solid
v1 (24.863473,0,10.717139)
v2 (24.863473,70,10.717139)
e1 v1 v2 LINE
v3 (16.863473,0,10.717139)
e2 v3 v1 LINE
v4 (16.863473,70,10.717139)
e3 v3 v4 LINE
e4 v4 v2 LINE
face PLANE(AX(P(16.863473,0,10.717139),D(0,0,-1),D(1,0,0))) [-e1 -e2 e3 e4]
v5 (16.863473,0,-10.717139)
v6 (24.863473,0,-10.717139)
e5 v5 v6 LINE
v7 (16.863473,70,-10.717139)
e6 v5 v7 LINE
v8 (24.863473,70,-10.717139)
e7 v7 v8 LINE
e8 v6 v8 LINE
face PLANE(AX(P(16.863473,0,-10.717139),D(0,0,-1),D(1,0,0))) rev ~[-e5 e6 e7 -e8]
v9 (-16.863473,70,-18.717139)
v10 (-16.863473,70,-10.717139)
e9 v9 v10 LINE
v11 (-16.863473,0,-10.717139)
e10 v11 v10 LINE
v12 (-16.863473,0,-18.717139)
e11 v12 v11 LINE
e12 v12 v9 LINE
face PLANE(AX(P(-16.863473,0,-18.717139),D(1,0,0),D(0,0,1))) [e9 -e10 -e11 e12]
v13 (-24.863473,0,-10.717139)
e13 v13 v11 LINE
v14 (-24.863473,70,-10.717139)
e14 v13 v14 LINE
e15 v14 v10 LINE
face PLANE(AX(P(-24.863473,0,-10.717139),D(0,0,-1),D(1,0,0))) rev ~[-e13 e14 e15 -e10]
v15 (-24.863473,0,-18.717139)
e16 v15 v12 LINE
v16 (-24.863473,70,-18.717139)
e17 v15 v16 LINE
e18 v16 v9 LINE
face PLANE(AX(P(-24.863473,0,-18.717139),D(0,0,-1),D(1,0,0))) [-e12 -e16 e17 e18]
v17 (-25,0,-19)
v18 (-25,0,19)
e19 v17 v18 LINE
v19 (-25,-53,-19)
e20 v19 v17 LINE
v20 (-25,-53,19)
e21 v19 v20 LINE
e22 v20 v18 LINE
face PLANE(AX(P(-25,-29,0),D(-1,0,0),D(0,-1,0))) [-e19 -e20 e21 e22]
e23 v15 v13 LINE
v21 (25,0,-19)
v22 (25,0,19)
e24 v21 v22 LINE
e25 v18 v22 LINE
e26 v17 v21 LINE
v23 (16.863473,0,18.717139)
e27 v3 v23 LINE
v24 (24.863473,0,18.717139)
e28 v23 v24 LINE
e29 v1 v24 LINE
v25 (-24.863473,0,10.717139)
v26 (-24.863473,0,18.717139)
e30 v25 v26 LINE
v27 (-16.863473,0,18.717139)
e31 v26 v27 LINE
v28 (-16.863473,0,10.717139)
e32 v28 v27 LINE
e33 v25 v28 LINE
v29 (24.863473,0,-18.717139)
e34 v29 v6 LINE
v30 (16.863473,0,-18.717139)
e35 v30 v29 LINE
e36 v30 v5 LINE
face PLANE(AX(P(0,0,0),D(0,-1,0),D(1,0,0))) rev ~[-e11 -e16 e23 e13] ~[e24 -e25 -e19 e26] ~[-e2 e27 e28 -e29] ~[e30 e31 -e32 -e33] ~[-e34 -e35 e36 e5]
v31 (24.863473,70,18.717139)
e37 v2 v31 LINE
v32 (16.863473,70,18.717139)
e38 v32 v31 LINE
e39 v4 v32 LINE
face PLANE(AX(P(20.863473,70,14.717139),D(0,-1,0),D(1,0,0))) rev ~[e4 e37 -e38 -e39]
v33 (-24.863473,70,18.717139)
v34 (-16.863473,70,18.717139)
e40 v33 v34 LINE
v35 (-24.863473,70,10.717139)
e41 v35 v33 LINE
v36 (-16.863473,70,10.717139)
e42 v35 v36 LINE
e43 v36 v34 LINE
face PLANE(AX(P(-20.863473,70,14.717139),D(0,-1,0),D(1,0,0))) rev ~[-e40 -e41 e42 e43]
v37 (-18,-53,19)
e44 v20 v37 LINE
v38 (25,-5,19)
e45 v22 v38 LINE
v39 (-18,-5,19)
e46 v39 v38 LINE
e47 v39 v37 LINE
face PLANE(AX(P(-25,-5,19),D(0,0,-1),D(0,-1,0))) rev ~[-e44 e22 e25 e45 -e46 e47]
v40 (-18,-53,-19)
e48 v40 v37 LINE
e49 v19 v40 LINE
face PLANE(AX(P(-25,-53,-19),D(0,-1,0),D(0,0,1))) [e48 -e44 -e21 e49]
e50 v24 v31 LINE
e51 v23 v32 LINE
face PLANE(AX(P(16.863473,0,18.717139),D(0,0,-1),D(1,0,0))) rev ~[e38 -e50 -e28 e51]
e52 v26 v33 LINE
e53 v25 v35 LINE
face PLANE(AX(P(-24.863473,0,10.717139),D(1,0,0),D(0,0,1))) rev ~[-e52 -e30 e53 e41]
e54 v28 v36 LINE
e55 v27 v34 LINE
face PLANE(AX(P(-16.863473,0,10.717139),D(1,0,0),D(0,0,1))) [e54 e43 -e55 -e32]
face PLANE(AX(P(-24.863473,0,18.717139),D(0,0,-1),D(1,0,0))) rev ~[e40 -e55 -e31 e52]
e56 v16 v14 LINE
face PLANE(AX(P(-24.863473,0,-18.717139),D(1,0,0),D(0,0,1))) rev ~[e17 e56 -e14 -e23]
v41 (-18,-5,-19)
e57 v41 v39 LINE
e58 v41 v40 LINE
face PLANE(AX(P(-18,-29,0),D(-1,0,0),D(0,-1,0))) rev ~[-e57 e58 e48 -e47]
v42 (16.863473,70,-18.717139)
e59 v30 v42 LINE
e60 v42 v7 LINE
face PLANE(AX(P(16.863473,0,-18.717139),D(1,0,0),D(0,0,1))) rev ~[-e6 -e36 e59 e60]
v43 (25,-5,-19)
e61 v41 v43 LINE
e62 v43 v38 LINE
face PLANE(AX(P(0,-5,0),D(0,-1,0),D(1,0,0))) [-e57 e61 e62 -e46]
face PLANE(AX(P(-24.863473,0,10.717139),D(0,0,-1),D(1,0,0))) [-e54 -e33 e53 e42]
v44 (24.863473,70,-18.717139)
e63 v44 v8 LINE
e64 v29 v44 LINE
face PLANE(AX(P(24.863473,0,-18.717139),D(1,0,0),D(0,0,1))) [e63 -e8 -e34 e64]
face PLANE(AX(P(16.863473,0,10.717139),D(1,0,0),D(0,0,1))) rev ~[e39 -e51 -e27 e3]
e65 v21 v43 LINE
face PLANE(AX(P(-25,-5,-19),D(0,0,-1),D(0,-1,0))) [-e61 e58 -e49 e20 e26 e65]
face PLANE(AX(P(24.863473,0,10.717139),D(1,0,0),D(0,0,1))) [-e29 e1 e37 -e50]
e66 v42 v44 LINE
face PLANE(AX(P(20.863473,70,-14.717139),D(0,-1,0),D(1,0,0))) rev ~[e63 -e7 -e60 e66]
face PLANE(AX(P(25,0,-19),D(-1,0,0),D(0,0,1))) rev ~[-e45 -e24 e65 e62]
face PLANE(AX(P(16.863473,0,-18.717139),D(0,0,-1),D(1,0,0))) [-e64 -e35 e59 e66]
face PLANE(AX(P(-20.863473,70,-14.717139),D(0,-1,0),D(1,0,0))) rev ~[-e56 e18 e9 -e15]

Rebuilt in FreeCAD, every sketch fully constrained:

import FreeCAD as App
import Part
import Sketcher

V = App.Vector

doc = App.newDocument("Part")
body = doc.addObject("PartDesign::Body", "Body")

# Sketch on XZ plane
sketch1 = body.newObject("Sketcher::SketchObject", "Sketch")
sketch1.AttachmentSupport = (doc.getObject("XZ_Plane"), [""])
sketch1.MapMode = "FlatFace"
sketch1.addGeometry(Part.LineSegment(V(-25, 19, 0), V(-25, -19, 0)), False)
sketch1.addGeometry(Part.LineSegment(V(-25, -19, 0), V(25, -19, 0)), False)
sketch1.addGeometry(Part.LineSegment(V(25, -19, 0), V(25, 19, 0)), False)
sketch1.addGeometry(Part.LineSegment(V(25, 19, 0), V(-25, 19, 0)), False)
sketch1.addConstraint(Sketcher.Constraint("Coincident", 0, 2, 1, 1))
sketch1.addConstraint(Sketcher.Constraint("Coincident", 1, 2, 2, 1))
sketch1.addConstraint(Sketcher.Constraint("Coincident", 2, 2, 3, 1))
sketch1.addConstraint(Sketcher.Constraint("Coincident", 3, 2, 0, 1))
sketch1.addConstraint(Sketcher.Constraint("Vertical", 0))
sketch1.addConstraint(Sketcher.Constraint("Horizontal", 1))
sketch1.addConstraint(Sketcher.Constraint("Vertical", 2))
sketch1.addConstraint(Sketcher.Constraint("Horizontal", 3))
sketch1.addConstraint(Sketcher.Constraint("Symmetric", 0, 2, 2, 2, -1, 1))
sketch1.addConstraint(Sketcher.Constraint("DistanceX", 1, 1, 1, 2, 50.0))
sketch1.addConstraint(Sketcher.Constraint("DistanceY", 0, 2, 0, 1, 38.0))
pad1 = body.newObject("PartDesign::Pad", "Pad")
pad1.Profile = sketch1
pad1.Length = 5

# Sketch on XZ plane
sketch2 = body.newObject("Sketcher::SketchObject", "Sketch001")
sketch2.AttachmentSupport = (doc.getObject("XZ_Plane"), [""])
sketch2.MapMode = "FlatFace"
sketch2.addGeometry(Part.LineSegment(V(17, 19, 0), V(17, 11, 0)), False)
sketch2.addGeometry(Part.LineSegment(V(17, 11, 0), V(25, 11, 0)), False)
sketch2.addGeometry(Part.LineSegment(V(25, 11, 0), V(25, 19, 0)), False)
sketch2.addGeometry(Part.LineSegment(V(25, 19, 0), V(17, 19, 0)), False)
sketch2.addGeometry(Part.LineSegment(V(17, -11, 0), V(17, -19, 0)), False)
sketch2.addGeometry(Part.LineSegment(V(17, -19, 0), V(25, -19, 0)), False)
sketch2.addGeometry(Part.LineSegment(V(25, -19, 0), V(25, -11, 0)), False)
sketch2.addGeometry(Part.LineSegment(V(25, -11, 0), V(17, -11, 0)), False)
sketch2.addGeometry(Part.LineSegment(V(-25, -11, 0), V(-25, -19, 0)), False)
sketch2.addGeometry(Part.LineSegment(V(-25, -19, 0), V(-17, -19, 0)), False)
sketch2.addGeometry(Part.LineSegment(V(-17, -19, 0), V(-17, -11, 0)), False)
sketch2.addGeometry(Part.LineSegment(V(-17, -11, 0), V(-25, -11, 0)), False)
sketch2.addGeometry(Part.LineSegment(V(-25, 19, 0), V(-25, 11, 0)), False)
sketch2.addGeometry(Part.LineSegment(V(-25, 11, 0), V(-17, 11, 0)), False)
sketch2.addGeometry(Part.LineSegment(V(-17, 11, 0), V(-17, 19, 0)), False)
sketch2.addGeometry(Part.LineSegment(V(-17, 19, 0), V(-25, 19, 0)), False)
sketch2.addConstraint(Sketcher.Constraint("Coincident", 0, 2, 1, 1))
sketch2.addConstraint(Sketcher.Constraint("Coincident", 1, 2, 2, 1))
sketch2.addConstraint(Sketcher.Constraint("Coincident", 2, 2, 3, 1))
sketch2.addConstraint(Sketcher.Constraint("Coincident", 3, 2, 0, 1))
sketch2.addConstraint(Sketcher.Constraint("Coincident", 4, 2, 5, 1))
sketch2.addConstraint(Sketcher.Constraint("Coincident", 5, 2, 6, 1))
sketch2.addConstraint(Sketcher.Constraint("Coincident", 6, 2, 7, 1))
sketch2.addConstraint(Sketcher.Constraint("Coincident", 7, 2, 4, 1))
sketch2.addConstraint(Sketcher.Constraint("Coincident", 8, 2, 9, 1))
sketch2.addConstraint(Sketcher.Constraint("Coincident", 9, 2, 10, 1))
sketch2.addConstraint(Sketcher.Constraint("Coincident", 10, 2, 11, 1))
sketch2.addConstraint(Sketcher.Constraint("Coincident", 11, 2, 8, 1))
sketch2.addConstraint(Sketcher.Constraint("Coincident", 12, 2, 13, 1))
sketch2.addConstraint(Sketcher.Constraint("Coincident", 13, 2, 14, 1))
sketch2.addConstraint(Sketcher.Constraint("Coincident", 14, 2, 15, 1))
sketch2.addConstraint(Sketcher.Constraint("Coincident", 15, 2, 12, 1))
sketch2.addConstraint(Sketcher.Constraint("Vertical", 0))
sketch2.addConstraint(Sketcher.Constraint("Horizontal", 1))
sketch2.addConstraint(Sketcher.Constraint("Vertical", 2))
sketch2.addConstraint(Sketcher.Constraint("Horizontal", 3))
sketch2.addConstraint(Sketcher.Constraint("Vertical", 4))
sketch2.addConstraint(Sketcher.Constraint("Horizontal", 5))
sketch2.addConstraint(Sketcher.Constraint("Vertical", 6))
sketch2.addConstraint(Sketcher.Constraint("Horizontal", 7))
sketch2.addConstraint(Sketcher.Constraint("Vertical", 8))
sketch2.addConstraint(Sketcher.Constraint("Horizontal", 9))
sketch2.addConstraint(Sketcher.Constraint("Vertical", 10))
sketch2.addConstraint(Sketcher.Constraint("Horizontal", 11))
sketch2.addConstraint(Sketcher.Constraint("Vertical", 12))
sketch2.addConstraint(Sketcher.Constraint("Horizontal", 13))
sketch2.addConstraint(Sketcher.Constraint("Vertical", 14))
sketch2.addConstraint(Sketcher.Constraint("Horizontal", 15))
sketch2.addConstraint(Sketcher.Constraint("Symmetric", 2, 2, 8, 2, -1, 1))
sketch2.addConstraint(Sketcher.Constraint("Symmetric", 0, 2, 10, 2, -1, 1))
sketch2.addConstraint(Sketcher.Constraint("Symmetric", 6, 2, 12, 2, -1, 1))
sketch2.addConstraint(Sketcher.Constraint("Symmetric", 4, 2, 14, 2, -1, 1))
sketch2.addConstraint(Sketcher.Constraint("Symmetric", 5, 2, 8, 2, -2))
sketch2.addConstraint(Sketcher.Constraint("Symmetric", 7, 2, 10, 2, -2))
sketch2.addConstraint(Sketcher.Constraint("Equal", 15, 0))
sketch2.addConstraint(Sketcher.Constraint("DistanceX", 1, 1, 1, 2, 8.0))
sketch2.addConstraint(Sketcher.Constraint("DistanceY", -1, 1, 0, 2, 10.717139))
sketch2.addConstraint(Sketcher.Constraint("DistanceX", -1, 1, 0, 2, 16.863473))
pad2 = body.newObject("PartDesign::Pad", "Pad001")
pad2.Profile = sketch2
pad2.Length = 70
pad2.Reversed = True

# Sketch on YZ plane
sketch3 = body.newObject("Sketcher::SketchObject", "Sketch002")
sketch3.AttachmentSupport = (doc.getObject("YZ_Plane"), [""])
sketch3.MapMode = "FlatFace"
sketch3.AttachmentOffset = App.Placement(V(0, 0, -25), App.Rotation())
sketch3.addGeometry(Part.LineSegment(V(-5, 19, 0), V(-5, -19, 0)), False)
sketch3.addGeometry(Part.LineSegment(V(-5, -19, 0), V(-53, -19, 0)), False)
sketch3.addGeometry(Part.LineSegment(V(-53, -19, 0), V(-53, 19, 0)), False)
sketch3.addGeometry(Part.LineSegment(V(-53, 19, 0), V(-5, 19, 0)), False)
sketch3.addConstraint(Sketcher.Constraint("Coincident", 0, 2, 1, 1))
sketch3.addConstraint(Sketcher.Constraint("Coincident", 1, 2, 2, 1))
sketch3.addConstraint(Sketcher.Constraint("Coincident", 2, 2, 3, 1))
sketch3.addConstraint(Sketcher.Constraint("Coincident", 3, 2, 0, 1))
sketch3.addConstraint(Sketcher.Constraint("Vertical", 0))
sketch3.addConstraint(Sketcher.Constraint("Horizontal", 1))
sketch3.addConstraint(Sketcher.Constraint("Vertical", 2))
sketch3.addConstraint(Sketcher.Constraint("Horizontal", 3))
sketch3.addConstraint(Sketcher.Constraint("DistanceX", 1, 2, 1, 1, 48.0))
sketch3.addConstraint(Sketcher.Constraint("DistanceY", 0, 2, 0, 1, 38.0))
sketch3.addConstraint(Sketcher.Constraint("DistanceX", 0, 2, -1, 1, 5.0))
sketch3.addConstraint(Sketcher.Constraint("DistanceY", 0, 2, -1, 1, 19.0))
pad3 = body.newObject("PartDesign::Pad", "Pad002")
pad3.Profile = sketch3
pad3.Length = 7

doc.recompute()
